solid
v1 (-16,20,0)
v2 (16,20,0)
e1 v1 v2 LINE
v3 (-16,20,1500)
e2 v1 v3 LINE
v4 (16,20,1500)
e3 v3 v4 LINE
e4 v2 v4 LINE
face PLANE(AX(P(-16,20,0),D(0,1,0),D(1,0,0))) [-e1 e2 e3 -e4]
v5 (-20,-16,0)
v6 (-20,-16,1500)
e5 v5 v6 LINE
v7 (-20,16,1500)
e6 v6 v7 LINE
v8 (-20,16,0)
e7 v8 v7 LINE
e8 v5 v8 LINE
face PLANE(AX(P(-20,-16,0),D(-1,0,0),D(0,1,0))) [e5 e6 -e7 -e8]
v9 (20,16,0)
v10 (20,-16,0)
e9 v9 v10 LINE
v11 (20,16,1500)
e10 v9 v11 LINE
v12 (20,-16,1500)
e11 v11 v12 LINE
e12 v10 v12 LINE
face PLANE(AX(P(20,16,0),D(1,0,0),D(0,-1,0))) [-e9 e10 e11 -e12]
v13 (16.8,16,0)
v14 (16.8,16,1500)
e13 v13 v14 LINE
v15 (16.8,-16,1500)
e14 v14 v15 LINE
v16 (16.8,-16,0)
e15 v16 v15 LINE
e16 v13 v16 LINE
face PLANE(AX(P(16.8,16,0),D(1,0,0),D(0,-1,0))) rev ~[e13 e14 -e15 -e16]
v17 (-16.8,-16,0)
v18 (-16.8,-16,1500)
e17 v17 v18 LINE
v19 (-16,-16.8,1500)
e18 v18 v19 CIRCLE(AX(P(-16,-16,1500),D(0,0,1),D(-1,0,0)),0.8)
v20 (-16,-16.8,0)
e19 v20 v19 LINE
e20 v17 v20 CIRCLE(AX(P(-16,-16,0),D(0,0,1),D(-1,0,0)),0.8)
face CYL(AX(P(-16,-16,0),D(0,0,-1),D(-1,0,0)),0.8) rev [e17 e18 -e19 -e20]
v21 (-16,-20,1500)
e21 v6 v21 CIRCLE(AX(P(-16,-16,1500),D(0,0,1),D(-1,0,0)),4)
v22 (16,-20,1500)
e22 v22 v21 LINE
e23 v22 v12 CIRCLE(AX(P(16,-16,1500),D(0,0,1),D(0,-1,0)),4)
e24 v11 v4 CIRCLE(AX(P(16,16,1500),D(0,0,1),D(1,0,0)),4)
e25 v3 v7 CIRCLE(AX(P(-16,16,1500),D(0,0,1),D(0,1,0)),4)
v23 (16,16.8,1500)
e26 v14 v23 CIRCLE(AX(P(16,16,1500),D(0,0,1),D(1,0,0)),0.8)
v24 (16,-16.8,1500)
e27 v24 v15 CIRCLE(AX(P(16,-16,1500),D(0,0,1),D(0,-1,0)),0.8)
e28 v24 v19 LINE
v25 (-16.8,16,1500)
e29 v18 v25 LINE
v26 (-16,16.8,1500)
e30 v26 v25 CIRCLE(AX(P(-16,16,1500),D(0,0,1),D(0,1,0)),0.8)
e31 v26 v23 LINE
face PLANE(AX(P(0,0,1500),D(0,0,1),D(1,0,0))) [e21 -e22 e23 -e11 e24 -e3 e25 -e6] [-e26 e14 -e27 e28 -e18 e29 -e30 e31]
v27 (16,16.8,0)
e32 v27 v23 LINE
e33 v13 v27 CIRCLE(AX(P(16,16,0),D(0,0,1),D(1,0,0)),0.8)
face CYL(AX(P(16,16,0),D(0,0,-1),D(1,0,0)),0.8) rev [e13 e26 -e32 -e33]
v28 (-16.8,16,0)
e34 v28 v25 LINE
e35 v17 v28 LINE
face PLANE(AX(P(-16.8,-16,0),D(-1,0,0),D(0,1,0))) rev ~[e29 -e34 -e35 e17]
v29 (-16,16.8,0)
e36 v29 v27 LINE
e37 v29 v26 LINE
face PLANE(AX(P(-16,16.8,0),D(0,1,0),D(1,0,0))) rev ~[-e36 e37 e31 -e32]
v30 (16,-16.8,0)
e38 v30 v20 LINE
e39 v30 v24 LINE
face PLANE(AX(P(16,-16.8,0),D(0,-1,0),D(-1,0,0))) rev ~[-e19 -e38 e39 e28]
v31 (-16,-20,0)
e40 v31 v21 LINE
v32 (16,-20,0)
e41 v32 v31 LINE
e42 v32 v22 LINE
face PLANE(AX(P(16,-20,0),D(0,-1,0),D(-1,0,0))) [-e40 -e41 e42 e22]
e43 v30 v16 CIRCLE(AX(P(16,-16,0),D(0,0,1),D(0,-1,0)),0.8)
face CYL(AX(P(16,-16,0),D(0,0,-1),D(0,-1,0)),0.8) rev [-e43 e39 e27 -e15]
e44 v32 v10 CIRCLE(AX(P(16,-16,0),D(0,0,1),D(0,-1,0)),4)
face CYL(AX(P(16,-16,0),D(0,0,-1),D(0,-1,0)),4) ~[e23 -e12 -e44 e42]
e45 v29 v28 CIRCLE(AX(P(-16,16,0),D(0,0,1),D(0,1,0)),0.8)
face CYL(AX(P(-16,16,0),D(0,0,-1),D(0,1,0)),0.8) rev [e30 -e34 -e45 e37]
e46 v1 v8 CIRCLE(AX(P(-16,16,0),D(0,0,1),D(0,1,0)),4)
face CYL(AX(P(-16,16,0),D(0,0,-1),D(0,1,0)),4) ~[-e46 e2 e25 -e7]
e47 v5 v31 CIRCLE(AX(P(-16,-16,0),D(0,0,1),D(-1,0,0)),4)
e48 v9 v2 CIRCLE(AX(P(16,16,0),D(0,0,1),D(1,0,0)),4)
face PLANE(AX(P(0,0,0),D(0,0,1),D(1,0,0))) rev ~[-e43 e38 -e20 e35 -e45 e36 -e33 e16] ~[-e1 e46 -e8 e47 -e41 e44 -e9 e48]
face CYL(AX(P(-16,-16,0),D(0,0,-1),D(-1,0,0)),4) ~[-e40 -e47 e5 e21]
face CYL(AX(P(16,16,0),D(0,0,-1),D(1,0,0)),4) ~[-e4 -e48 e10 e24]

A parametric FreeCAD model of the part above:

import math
import FreeCAD as App
import Part
import Sketcher

doc = App.newDocument("Part")
body = doc.addObject("PartDesign::Body", "Body")

# Sketch on XY plane
sketch1 = body.newObject("Sketcher::SketchObject", "Sketch")
sketch1.AttachmentSupport = (doc.getObject("XY_Plane"), [""])
sketch1.MapMode = "FlatFace"
sketch1.addGeometry(Part.LineSegment(App.Vector(-20, 16, 0), App.Vector(-20, -16, 0)), False)
sketch1.addGeometry(Part.ArcOfCircle(Part.Circle(App.Vector(-16, -16, 0), App.Vector(0, 0, 1), 4), math.radians(180), math.radians(270)), False)
sketch1.addGeometry(Part.LineSegment(App.Vector(-16, -20, 0), App.Vector(16, -20, 0)), False)
sketch1.addGeometry(Part.ArcOfCircle(Part.Circle(App.Vector(16, -16, 0), App.Vector(0, 0, 1), 4), math.radians(-90), math.radians(0)), False)
sketch1.addGeometry(Part.LineSegment(App.Vector(20, -16, 0), App.Vector(20, 16, 0)), False)
sketch1.addGeometry(Part.ArcOfCircle(Part.Circle(App.Vector(16, 16, 0), App.Vector(0, 0, 1), 4), math.radians(0), math.radians(90)), False)
sketch1.addGeometry(Part.LineSegment(App.Vector(16, 20, 0), App.Vector(-16, 20, 0)), False)
sketch1.addGeometry(Part.ArcOfCircle(Part.Circle(App.Vector(-16, 16, 0), App.Vector(0, 0, 1), 4), math.radians(90), math.radians(180)), False)
sketch1.addGeometry(Part.ArcOfCircle(Part.Circle(App.Vector(-16, 16, 0), App.Vector(0, 0, 1), 0.8), math.radians(90), math.radians(180)), False)
sketch1.addGeometry(Part.LineSegment(App.Vector(-16, 16.8, 0), App.Vector(16, 16.8, 0)), False)
sketch1.addGeometry(Part.ArcOfCircle(Part.Circle(App.Vector(16, 16, 0), App.Vector(0, 0, 1), 0.8), math.radians(0), math.radians(90)), False)
sketch1.addGeometry(Part.LineSegment(App.Vector(16.8, 16, 0), App.Vector(16.8, -16, 0)), False)
sketch1.addGeometry(Part.ArcOfCircle(Part.Circle(App.Vector(16, -16, 0), App.Vector(0, 0, 1), 0.8), math.radians(-90), math.radians(0)), False)
sketch1.addGeometry(Part.LineSegment(App.Vector(16, -16.8, 0), App.Vector(-16, -16.8, 0)), False)
sketch1.addGeometry(Part.ArcOfCircle(Part.Circle(App.Vector(-16, -16, 0), App.Vector(0, 0, 1), 0.8), math.radians(180), math.radians(270)), False)
sketch1.addGeometry(Part.LineSegment(App.Vector(-16.8, -16, 0), App.Vector(-16.8, 16, 0)), False)
sketch1.addConstraint(Sketcher.Constraint("Tangent", 0, 2, 1, 1))
sketch1.addConstraint(Sketcher.Constraint("Tangent", 1, 2, 2, 1))
sketch1.addConstraint(Sketcher.Constraint("Tangent", 2, 2, 3, 1))
sketch1.addConstraint(Sketcher.Constraint("Tangent", 3, 2, 4, 1))
sketch1.addConstraint(Sketcher.Constraint("Tangent", 4, 2, 5, 1))
sketch1.addConstraint(Sketcher.Constraint("Tangent", 5, 2, 6, 1))
sketch1.addConstraint(Sketcher.Constraint("Tangent", 6, 2, 7, 1))
sketch1.addConstraint(Sketcher.Constraint("Tangent", 7, 2, 0, 1))
sketch1.addConstraint(Sketcher.Constraint("Tangent", 8, 1, 9, 1))
sketch1.addConstraint(Sketcher.Constraint("Tangent", 9, 2, 10, 2))
sketch1.addConstraint(Sketcher.Constraint("Tangent", 10, 1, 11, 1))
sketch1.addConstraint(Sketcher.Constraint("Tangent", 11, 2, 12, 2))
sketch1.addConstraint(Sketcher.Constraint("Tangent", 12, 1, 13, 1))
sketch1.addConstraint(Sketcher.Constraint("Tangent", 13, 2, 14, 2))
sketch1.addConstraint(Sketcher.Constraint("Tangent", 14, 1, 15, 1))
sketch1.addConstraint(Sketcher.Constraint("Tangent", 15, 2, 8, 2))
sketch1.addConstraint(Sketcher.Constraint("Vertical", 0))
sketch1.addConstraint(Sketcher.Constraint("Horizontal", 2))
sketch1.addConstraint(Sketcher.Constraint("Vertical", 4))
sketch1.addConstraint(Sketcher.Constraint("Horizontal", 6))
sketch1.addConstraint(Sketcher.Constraint("Horizontal", 9))
sketch1.addConstraint(Sketcher.Constraint("Vertical", 11))
sketch1.addConstraint(Sketcher.Constraint("Horizontal", 13))
sketch1.addConstraint(Sketcher.Constraint("Vertical", 15))
sketch1.addConstraint(Sketcher.Constraint("Coincident", 8, 3, 7, 3))
sketch1.addConstraint(Sketcher.Constraint("Coincident", 10, 3, 5, 3))
sketch1.addConstraint(Sketcher.Constraint("Coincident", 12, 3, 3, 3))
sketch1.addConstraint(Sketcher.Constraint("Equal", 1, 3))
sketch1.addConstraint(Sketcher.Constraint("Equal", 3, 5))
sketch1.addConstraint(Sketcher.Constraint("Equal", 5, 7))
sketch1.addConstraint(Sketcher.Constraint("Equal", 12, 14))
sketch1.addConstraint(Sketcher.Constraint("Symmetric", 1, 3, 5, 3, -1, 1))
sketch1.addConstraint(Sketcher.Constraint("Equal", 13, 0))
sketch1.addConstraint(Sketcher.Constraint("Radius", 1, 4.0))
sketch1.addConstraint(Sketcher.Constraint("DistanceX", 0, 2, -1, 1, 20.0))
sketch1.addConstraint(Sketcher.Constraint("Radius", 8, 0.8))
pad1 = body.newObject("PartDesign::Pad", "Pad")
pad1.Profile = sketch1
pad1.Length = 1500

doc.recompute()
